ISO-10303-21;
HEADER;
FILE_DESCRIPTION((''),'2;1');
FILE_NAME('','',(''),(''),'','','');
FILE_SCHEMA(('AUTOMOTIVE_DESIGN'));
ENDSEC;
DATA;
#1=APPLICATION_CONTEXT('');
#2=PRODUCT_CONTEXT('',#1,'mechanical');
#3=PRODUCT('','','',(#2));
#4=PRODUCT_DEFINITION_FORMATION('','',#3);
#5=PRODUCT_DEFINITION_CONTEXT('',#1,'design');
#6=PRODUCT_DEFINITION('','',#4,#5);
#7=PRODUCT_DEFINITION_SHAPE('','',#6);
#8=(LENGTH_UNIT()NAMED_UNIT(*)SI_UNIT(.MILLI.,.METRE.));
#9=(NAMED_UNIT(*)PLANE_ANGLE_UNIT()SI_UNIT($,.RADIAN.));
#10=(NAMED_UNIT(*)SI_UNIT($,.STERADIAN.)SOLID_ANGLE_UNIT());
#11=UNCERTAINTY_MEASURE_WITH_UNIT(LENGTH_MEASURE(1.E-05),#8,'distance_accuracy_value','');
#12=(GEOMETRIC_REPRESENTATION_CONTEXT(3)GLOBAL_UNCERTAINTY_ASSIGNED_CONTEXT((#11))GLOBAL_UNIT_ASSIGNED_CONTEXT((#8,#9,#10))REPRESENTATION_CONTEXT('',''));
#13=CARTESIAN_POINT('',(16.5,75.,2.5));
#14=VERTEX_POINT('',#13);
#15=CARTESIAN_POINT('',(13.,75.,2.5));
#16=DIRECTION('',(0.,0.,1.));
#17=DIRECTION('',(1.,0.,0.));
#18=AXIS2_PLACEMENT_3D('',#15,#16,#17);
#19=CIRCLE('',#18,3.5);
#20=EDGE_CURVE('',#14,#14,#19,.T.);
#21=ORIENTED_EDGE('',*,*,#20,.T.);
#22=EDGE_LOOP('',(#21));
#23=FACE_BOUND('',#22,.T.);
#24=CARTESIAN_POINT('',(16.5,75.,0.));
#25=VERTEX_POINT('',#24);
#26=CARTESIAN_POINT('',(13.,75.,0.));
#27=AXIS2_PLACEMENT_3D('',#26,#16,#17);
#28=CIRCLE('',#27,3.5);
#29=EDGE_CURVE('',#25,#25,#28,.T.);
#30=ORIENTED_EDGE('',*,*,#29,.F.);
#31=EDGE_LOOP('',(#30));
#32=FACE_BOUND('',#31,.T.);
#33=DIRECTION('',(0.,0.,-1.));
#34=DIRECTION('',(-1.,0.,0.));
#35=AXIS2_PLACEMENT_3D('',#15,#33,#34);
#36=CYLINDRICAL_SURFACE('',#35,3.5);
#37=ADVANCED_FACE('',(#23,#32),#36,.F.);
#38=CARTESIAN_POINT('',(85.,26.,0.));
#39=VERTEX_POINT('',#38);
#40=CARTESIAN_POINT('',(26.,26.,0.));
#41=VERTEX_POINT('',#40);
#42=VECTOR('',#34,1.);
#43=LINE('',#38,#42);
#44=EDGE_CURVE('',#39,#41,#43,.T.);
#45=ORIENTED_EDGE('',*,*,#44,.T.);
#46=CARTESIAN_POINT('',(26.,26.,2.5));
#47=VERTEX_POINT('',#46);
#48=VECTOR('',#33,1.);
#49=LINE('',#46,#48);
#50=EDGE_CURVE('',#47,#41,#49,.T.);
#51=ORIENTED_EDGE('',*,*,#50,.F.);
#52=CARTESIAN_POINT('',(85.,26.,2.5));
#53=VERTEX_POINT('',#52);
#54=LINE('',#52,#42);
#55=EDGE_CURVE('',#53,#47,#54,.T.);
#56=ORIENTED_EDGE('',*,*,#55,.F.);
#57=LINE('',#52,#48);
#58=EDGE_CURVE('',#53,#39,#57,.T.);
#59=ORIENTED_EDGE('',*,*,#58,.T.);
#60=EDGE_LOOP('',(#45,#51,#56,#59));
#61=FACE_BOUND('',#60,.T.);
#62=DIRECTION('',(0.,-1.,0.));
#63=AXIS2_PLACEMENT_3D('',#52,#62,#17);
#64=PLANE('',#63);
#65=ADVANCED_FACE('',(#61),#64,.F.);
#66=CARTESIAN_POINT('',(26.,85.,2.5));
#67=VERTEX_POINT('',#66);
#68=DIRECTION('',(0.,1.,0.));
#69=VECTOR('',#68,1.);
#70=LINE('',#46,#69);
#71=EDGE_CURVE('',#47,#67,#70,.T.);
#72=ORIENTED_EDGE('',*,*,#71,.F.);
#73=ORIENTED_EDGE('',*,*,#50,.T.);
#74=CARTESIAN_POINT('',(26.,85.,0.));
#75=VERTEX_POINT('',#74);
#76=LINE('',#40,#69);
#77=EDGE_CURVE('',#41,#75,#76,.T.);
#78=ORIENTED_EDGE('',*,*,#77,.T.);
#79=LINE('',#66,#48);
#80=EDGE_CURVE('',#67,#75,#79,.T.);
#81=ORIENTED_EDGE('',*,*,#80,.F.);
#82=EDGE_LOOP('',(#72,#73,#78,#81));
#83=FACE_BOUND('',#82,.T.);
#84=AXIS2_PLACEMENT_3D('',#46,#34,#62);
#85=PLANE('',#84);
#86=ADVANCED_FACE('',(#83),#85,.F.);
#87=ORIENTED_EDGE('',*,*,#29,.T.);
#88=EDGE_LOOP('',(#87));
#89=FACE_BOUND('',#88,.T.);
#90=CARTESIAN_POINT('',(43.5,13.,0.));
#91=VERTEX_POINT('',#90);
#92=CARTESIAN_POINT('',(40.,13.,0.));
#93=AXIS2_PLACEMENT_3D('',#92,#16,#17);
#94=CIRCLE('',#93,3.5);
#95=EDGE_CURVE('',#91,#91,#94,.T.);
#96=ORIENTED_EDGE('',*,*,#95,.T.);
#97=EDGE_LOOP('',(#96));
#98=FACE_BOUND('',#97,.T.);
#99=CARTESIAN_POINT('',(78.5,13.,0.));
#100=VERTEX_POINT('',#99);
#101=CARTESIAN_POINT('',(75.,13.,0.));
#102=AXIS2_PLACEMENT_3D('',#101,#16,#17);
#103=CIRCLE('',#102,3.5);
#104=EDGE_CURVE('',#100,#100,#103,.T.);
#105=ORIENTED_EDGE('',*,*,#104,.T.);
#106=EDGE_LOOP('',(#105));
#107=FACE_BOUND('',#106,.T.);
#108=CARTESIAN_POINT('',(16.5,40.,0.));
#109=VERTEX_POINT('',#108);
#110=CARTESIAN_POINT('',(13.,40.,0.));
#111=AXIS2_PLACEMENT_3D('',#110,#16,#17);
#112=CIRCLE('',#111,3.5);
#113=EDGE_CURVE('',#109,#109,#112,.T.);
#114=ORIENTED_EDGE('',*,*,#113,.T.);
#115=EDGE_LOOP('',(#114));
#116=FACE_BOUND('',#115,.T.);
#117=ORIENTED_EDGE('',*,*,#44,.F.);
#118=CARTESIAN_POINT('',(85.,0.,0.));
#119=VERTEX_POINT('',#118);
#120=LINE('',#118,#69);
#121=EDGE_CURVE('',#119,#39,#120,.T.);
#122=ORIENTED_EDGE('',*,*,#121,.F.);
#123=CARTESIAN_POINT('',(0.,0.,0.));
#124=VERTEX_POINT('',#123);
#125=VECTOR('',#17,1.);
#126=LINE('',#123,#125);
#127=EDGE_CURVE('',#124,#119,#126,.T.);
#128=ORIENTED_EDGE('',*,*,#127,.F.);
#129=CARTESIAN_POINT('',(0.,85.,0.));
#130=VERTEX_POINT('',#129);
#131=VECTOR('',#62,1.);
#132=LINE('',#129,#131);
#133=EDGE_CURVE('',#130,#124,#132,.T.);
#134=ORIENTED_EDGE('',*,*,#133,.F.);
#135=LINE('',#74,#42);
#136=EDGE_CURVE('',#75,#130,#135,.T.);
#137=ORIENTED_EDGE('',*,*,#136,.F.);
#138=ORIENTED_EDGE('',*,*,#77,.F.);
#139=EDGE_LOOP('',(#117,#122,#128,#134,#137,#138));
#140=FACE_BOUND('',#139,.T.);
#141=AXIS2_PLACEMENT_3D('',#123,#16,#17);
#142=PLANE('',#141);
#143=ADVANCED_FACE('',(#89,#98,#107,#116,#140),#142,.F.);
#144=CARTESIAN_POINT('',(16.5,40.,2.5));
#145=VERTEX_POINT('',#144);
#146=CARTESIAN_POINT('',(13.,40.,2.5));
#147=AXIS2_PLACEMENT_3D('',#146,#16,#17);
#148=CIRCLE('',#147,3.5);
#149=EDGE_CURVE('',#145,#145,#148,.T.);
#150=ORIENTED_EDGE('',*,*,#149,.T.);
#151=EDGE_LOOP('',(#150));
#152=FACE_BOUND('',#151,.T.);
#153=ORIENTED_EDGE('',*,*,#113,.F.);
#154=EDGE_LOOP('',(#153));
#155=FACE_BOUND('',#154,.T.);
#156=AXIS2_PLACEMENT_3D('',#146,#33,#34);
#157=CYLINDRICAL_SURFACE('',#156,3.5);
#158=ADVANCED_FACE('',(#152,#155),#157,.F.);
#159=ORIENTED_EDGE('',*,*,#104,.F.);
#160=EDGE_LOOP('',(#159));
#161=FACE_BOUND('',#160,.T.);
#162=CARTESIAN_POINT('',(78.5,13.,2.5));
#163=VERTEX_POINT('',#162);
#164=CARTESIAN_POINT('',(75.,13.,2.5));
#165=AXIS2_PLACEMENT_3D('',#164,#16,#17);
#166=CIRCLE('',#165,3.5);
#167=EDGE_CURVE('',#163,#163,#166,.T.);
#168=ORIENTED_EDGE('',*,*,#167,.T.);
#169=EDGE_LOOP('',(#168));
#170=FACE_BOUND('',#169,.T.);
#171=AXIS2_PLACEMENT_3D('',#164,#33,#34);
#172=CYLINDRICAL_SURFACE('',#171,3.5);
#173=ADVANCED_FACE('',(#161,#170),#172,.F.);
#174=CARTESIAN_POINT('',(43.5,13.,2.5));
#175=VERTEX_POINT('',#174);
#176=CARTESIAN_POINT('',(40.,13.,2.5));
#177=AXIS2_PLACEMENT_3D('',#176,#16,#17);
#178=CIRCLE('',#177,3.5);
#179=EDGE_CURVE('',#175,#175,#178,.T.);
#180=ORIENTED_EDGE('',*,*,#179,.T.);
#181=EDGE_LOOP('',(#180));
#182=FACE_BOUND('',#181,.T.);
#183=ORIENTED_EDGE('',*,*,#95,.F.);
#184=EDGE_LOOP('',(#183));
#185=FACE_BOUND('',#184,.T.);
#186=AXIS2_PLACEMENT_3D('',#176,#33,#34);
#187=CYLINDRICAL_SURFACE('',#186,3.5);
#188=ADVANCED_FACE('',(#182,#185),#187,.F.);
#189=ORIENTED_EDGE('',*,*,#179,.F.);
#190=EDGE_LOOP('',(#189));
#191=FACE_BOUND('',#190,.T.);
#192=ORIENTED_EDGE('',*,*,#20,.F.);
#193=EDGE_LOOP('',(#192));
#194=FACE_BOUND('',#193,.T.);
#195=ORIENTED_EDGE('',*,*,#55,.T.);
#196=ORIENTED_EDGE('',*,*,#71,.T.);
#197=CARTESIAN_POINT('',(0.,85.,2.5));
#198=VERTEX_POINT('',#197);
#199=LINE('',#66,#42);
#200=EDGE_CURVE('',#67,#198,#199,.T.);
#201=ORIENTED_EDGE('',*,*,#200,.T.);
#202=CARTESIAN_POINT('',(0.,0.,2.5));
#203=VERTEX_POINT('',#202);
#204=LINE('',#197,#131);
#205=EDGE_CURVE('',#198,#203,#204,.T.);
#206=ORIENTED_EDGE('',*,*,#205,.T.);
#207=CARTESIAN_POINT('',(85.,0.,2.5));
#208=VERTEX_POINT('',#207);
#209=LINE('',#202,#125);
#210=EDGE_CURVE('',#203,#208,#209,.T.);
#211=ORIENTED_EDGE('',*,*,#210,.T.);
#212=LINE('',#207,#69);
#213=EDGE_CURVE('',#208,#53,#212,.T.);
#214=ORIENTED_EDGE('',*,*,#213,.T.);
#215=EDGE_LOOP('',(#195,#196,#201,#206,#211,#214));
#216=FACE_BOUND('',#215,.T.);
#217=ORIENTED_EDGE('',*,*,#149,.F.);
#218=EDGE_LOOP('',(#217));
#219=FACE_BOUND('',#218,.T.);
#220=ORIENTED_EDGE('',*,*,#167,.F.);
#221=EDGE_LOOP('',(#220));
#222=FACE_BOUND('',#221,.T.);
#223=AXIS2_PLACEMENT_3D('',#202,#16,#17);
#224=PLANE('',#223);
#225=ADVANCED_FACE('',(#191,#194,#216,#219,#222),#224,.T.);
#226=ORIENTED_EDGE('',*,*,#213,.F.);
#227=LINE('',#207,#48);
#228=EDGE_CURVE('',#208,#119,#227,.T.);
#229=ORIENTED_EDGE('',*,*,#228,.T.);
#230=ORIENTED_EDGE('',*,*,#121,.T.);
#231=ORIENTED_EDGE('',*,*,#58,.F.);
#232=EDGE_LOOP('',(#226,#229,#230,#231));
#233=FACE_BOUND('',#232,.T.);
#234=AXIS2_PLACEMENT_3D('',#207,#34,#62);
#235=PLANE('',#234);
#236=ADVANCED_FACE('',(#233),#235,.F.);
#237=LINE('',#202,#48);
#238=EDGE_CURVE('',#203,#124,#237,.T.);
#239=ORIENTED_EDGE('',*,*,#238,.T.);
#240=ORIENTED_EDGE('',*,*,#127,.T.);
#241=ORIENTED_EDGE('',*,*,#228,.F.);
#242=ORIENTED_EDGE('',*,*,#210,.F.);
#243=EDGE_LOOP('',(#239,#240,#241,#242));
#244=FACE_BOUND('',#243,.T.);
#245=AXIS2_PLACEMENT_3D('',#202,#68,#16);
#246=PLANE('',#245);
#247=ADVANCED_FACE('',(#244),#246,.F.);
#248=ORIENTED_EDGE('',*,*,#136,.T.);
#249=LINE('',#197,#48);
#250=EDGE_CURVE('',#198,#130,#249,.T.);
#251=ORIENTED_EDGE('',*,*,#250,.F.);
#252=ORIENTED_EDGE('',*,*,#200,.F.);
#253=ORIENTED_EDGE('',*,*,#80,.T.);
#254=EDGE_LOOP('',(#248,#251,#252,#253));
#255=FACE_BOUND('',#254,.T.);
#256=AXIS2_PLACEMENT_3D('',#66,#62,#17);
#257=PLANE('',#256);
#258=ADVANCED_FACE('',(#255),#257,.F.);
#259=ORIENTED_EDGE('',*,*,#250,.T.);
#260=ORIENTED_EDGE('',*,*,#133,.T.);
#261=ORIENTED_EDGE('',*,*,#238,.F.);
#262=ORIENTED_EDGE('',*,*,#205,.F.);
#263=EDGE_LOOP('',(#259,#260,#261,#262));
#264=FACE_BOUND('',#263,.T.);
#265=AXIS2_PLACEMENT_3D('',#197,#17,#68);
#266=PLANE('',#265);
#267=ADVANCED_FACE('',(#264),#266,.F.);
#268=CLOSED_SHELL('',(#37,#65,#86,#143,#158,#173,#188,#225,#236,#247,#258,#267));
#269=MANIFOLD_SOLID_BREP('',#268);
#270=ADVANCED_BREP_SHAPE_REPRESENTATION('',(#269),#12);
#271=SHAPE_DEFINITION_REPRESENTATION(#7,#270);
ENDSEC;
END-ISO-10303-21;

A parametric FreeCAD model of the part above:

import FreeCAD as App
import Part
import Sketcher

V = App.Vector
Q = App.Units.Quantity


def add_polygon(sketch, points):
    """Adds a closed chain of lines whose ends are joined by coincident constraints."""
    first, n = sketch.GeometryCount, len(points)
    for a, b in zip(points, points[1:] + points[:1]):
        sketch.addGeometry(Part.LineSegment(App.Vector(*a, 0), App.Vector(*b, 0)), False)
    for i in range(n):
        sketch.addConstraint(Sketcher.Constraint("Coincident", first + i, 2, first + (i + 1) % n, 1))

doc = App.newDocument("Part")
body = doc.addObject("PartDesign::Body", "Body")

# Sketch on XY plane
sketch1 = doc.addObject("Sketcher::SketchObject", "Sketch")
body.addObject(sketch1)
sketch1.AttachmentSupport = (doc.XY_Plane, [""])
sketch1.MapMode = "FlatFace"
add_polygon(sketch1, [(0, 85), (0, 0), (85, 0), (85, 26), (26, 26), (26, 85)])  # lines 0-5
sketch1.addGeometry(Part.Circle(V(40, 13, 0), V(0, 0, 1), 3.5), False)  # 6
sketch1.addGeometry(Part.Circle(V(13, 40, 0), V(0, 0, 1), 3.5), False)  # 7
sketch1.addGeometry(Part.Circle(V(75, 13, 0), V(0, 0, 1), 3.5), False)  # 8
sketch1.addGeometry(Part.Circle(V(13, 75, 0), V(0, 0, 1), 3.5), False)  # 9
sketch1.addConstraint([
    Sketcher.Constraint("Vertical", 0),
    Sketcher.Constraint("Horizontal", 1),
    Sketcher.Constraint("Vertical", 2),
    Sketcher.Constraint("Horizontal", 3),
    Sketcher.Constraint("Vertical", 4),
    Sketcher.Constraint("Horizontal", 5),
    Sketcher.Constraint("Coincident", 0, 2, -1, 1),
    Sketcher.Constraint("Equal", 6, 7),
    Sketcher.Constraint("Equal", 7, 8),
    Sketcher.Constraint("Equal", 8, 9),
    Sketcher.Constraint("Horizontal", 6, 3, 8, 3),
    Sketcher.Constraint("Vertical", 7, 3, 9, 3),
    Sketcher.Constraint("Equal", 1, 0),
    Sketcher.Constraint("Equal", 5, 2),
    Sketcher.Constraint("Diameter", 6, Q("7 mm")),
    Sketcher.Constraint("DistanceX", 1, 1, 1, 2, Q("85 mm")),
    Sketcher.Constraint("DistanceX", 3, 2, 3, 1, Q("59 mm")),
    Sketcher.Constraint("DistanceX", -1, 1, 6, 3, Q("40 mm")),
    Sketcher.Constraint("DistanceY", -1, 1, 6, 3, Q("13 mm")),
    Sketcher.Constraint("DistanceX", -1, 1, 7, 3, Q("13 mm")),
    Sketcher.Constraint("DistanceY", -1, 1, 7, 3, Q("40 mm")),
    Sketcher.Constraint("DistanceX", -1, 1, 8, 3, Q("75 mm")),
    Sketcher.Constraint("DistanceY", -1, 1, 9, 3, Q("75 mm")),
])
pad1 = doc.addObject("PartDesign::Pad", "Pad")
body.addObject(pad1)
pad1.Profile = sketch1
pad1.Length = 2.5

doc.recompute()
